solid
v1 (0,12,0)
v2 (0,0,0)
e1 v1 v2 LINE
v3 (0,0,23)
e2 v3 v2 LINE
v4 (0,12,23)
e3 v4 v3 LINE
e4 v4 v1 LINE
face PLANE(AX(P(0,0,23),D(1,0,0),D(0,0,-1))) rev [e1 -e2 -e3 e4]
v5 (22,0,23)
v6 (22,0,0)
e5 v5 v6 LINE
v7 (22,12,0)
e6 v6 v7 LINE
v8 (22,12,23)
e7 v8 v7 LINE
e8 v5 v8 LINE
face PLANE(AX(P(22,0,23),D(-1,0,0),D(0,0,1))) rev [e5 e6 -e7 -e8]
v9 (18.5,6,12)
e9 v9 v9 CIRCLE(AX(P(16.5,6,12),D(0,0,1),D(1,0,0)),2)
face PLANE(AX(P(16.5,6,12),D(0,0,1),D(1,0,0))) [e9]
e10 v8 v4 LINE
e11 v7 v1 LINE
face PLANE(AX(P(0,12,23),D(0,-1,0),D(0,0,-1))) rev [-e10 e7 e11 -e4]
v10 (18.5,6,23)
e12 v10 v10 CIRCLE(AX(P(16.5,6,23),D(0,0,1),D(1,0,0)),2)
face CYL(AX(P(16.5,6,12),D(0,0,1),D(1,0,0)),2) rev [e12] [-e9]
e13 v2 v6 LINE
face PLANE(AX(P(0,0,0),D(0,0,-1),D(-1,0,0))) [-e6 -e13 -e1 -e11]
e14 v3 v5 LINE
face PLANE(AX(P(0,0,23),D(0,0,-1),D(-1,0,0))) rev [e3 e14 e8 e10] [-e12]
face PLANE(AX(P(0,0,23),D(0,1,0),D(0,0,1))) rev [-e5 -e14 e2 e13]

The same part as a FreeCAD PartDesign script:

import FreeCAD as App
import Part
import Sketcher
Q = App.Units.Quantity


def add_polygon(sketch, points):
    """Adds a closed chain of lines whose ends are joined by coincident constraints."""
    first, n = sketch.GeometryCount, len(points)
    for a, b in zip(points, points[1:] + points[:1]):
        sketch.addGeometry(Part.LineSegment(App.Vector(*a, 0), App.Vector(*b, 0)), False)
    for i in range(n):
        sketch.addConstraint(Sketcher.Constraint("Coincident", first + i, 2, first + (i + 1) % n, 1))

doc = App.newDocument("Part")
body = doc.addObject("PartDesign::Body", "Body")

# Sketch on XY plane
sketch1 = doc.addObject("Sketcher::SketchObject", "Sketch")
body.addObject(sketch1)
sketch1.AttachmentSupport = (doc.XY_Plane, [""])
sketch1.MapMode = "FlatFace"
add_polygon(sketch1, [(0, 12), (0, 0), (22, 0), (22, 12)])  # lines 0-3
sketch1.addConstraint(Sketcher.Constraint("Vertical", 0))
sketch1.addConstraint(Sketcher.Constraint("Horizontal", 1))
sketch1.addConstraint(Sketcher.Constraint("Vertical", 2))
sketch1.addConstraint(Sketcher.Constraint("Horizontal", 3))
sketch1.addConstraint(Sketcher.Constraint("Coincident", 0, 2, -1, 1))
sketch1.addConstraint(Sketcher.Constraint("DistanceX", 1, 1, 1, 2, Q("22 mm")))
sketch1.addConstraint(Sketcher.Constraint("DistanceY", 0, 2, 0, 1, Q("12 mm")))
pad1 = doc.addObject("PartDesign::Pad", "Pad")
body.addObject(pad1)
pad1.Profile = sketch1
pad1.Length = 23

# Sketch on XY plane
sketch2 = doc.addObject("Sketcher::SketchObject", "Sketch001")
body.addObject(sketch2)
sketch2.AttachmentSupport = (doc.XY_Plane, [""])
sketch2.MapMode = "FlatFace"
sketch2.AttachmentOffset = App.Placement(App.Vector(0, 0, 23), App.Rotation())
sketch2.addGeometry(Part.Circle(App.Vector(16.5, 6, 0), App.Vector(0, 0, 1), 2), False)
sketch2.addConstraint(Sketcher.Constraint("Diameter", 0, Q("4 mm")))
sketch2.addConstraint(Sketcher.Constraint("DistanceY", -1, 1, 0, 3, Q("6 mm")))
sketch2.addConstraint(Sketcher.Constraint("DistanceX", -1, 1, 0, 3, Q("16.5 mm")))
pocket1 = doc.addObject("PartDesign::Pocket", "Pocket")
body.addObject(pocket1)
pocket1.Profile = sketch2
pocket1.Length = 11

doc.recompute()
